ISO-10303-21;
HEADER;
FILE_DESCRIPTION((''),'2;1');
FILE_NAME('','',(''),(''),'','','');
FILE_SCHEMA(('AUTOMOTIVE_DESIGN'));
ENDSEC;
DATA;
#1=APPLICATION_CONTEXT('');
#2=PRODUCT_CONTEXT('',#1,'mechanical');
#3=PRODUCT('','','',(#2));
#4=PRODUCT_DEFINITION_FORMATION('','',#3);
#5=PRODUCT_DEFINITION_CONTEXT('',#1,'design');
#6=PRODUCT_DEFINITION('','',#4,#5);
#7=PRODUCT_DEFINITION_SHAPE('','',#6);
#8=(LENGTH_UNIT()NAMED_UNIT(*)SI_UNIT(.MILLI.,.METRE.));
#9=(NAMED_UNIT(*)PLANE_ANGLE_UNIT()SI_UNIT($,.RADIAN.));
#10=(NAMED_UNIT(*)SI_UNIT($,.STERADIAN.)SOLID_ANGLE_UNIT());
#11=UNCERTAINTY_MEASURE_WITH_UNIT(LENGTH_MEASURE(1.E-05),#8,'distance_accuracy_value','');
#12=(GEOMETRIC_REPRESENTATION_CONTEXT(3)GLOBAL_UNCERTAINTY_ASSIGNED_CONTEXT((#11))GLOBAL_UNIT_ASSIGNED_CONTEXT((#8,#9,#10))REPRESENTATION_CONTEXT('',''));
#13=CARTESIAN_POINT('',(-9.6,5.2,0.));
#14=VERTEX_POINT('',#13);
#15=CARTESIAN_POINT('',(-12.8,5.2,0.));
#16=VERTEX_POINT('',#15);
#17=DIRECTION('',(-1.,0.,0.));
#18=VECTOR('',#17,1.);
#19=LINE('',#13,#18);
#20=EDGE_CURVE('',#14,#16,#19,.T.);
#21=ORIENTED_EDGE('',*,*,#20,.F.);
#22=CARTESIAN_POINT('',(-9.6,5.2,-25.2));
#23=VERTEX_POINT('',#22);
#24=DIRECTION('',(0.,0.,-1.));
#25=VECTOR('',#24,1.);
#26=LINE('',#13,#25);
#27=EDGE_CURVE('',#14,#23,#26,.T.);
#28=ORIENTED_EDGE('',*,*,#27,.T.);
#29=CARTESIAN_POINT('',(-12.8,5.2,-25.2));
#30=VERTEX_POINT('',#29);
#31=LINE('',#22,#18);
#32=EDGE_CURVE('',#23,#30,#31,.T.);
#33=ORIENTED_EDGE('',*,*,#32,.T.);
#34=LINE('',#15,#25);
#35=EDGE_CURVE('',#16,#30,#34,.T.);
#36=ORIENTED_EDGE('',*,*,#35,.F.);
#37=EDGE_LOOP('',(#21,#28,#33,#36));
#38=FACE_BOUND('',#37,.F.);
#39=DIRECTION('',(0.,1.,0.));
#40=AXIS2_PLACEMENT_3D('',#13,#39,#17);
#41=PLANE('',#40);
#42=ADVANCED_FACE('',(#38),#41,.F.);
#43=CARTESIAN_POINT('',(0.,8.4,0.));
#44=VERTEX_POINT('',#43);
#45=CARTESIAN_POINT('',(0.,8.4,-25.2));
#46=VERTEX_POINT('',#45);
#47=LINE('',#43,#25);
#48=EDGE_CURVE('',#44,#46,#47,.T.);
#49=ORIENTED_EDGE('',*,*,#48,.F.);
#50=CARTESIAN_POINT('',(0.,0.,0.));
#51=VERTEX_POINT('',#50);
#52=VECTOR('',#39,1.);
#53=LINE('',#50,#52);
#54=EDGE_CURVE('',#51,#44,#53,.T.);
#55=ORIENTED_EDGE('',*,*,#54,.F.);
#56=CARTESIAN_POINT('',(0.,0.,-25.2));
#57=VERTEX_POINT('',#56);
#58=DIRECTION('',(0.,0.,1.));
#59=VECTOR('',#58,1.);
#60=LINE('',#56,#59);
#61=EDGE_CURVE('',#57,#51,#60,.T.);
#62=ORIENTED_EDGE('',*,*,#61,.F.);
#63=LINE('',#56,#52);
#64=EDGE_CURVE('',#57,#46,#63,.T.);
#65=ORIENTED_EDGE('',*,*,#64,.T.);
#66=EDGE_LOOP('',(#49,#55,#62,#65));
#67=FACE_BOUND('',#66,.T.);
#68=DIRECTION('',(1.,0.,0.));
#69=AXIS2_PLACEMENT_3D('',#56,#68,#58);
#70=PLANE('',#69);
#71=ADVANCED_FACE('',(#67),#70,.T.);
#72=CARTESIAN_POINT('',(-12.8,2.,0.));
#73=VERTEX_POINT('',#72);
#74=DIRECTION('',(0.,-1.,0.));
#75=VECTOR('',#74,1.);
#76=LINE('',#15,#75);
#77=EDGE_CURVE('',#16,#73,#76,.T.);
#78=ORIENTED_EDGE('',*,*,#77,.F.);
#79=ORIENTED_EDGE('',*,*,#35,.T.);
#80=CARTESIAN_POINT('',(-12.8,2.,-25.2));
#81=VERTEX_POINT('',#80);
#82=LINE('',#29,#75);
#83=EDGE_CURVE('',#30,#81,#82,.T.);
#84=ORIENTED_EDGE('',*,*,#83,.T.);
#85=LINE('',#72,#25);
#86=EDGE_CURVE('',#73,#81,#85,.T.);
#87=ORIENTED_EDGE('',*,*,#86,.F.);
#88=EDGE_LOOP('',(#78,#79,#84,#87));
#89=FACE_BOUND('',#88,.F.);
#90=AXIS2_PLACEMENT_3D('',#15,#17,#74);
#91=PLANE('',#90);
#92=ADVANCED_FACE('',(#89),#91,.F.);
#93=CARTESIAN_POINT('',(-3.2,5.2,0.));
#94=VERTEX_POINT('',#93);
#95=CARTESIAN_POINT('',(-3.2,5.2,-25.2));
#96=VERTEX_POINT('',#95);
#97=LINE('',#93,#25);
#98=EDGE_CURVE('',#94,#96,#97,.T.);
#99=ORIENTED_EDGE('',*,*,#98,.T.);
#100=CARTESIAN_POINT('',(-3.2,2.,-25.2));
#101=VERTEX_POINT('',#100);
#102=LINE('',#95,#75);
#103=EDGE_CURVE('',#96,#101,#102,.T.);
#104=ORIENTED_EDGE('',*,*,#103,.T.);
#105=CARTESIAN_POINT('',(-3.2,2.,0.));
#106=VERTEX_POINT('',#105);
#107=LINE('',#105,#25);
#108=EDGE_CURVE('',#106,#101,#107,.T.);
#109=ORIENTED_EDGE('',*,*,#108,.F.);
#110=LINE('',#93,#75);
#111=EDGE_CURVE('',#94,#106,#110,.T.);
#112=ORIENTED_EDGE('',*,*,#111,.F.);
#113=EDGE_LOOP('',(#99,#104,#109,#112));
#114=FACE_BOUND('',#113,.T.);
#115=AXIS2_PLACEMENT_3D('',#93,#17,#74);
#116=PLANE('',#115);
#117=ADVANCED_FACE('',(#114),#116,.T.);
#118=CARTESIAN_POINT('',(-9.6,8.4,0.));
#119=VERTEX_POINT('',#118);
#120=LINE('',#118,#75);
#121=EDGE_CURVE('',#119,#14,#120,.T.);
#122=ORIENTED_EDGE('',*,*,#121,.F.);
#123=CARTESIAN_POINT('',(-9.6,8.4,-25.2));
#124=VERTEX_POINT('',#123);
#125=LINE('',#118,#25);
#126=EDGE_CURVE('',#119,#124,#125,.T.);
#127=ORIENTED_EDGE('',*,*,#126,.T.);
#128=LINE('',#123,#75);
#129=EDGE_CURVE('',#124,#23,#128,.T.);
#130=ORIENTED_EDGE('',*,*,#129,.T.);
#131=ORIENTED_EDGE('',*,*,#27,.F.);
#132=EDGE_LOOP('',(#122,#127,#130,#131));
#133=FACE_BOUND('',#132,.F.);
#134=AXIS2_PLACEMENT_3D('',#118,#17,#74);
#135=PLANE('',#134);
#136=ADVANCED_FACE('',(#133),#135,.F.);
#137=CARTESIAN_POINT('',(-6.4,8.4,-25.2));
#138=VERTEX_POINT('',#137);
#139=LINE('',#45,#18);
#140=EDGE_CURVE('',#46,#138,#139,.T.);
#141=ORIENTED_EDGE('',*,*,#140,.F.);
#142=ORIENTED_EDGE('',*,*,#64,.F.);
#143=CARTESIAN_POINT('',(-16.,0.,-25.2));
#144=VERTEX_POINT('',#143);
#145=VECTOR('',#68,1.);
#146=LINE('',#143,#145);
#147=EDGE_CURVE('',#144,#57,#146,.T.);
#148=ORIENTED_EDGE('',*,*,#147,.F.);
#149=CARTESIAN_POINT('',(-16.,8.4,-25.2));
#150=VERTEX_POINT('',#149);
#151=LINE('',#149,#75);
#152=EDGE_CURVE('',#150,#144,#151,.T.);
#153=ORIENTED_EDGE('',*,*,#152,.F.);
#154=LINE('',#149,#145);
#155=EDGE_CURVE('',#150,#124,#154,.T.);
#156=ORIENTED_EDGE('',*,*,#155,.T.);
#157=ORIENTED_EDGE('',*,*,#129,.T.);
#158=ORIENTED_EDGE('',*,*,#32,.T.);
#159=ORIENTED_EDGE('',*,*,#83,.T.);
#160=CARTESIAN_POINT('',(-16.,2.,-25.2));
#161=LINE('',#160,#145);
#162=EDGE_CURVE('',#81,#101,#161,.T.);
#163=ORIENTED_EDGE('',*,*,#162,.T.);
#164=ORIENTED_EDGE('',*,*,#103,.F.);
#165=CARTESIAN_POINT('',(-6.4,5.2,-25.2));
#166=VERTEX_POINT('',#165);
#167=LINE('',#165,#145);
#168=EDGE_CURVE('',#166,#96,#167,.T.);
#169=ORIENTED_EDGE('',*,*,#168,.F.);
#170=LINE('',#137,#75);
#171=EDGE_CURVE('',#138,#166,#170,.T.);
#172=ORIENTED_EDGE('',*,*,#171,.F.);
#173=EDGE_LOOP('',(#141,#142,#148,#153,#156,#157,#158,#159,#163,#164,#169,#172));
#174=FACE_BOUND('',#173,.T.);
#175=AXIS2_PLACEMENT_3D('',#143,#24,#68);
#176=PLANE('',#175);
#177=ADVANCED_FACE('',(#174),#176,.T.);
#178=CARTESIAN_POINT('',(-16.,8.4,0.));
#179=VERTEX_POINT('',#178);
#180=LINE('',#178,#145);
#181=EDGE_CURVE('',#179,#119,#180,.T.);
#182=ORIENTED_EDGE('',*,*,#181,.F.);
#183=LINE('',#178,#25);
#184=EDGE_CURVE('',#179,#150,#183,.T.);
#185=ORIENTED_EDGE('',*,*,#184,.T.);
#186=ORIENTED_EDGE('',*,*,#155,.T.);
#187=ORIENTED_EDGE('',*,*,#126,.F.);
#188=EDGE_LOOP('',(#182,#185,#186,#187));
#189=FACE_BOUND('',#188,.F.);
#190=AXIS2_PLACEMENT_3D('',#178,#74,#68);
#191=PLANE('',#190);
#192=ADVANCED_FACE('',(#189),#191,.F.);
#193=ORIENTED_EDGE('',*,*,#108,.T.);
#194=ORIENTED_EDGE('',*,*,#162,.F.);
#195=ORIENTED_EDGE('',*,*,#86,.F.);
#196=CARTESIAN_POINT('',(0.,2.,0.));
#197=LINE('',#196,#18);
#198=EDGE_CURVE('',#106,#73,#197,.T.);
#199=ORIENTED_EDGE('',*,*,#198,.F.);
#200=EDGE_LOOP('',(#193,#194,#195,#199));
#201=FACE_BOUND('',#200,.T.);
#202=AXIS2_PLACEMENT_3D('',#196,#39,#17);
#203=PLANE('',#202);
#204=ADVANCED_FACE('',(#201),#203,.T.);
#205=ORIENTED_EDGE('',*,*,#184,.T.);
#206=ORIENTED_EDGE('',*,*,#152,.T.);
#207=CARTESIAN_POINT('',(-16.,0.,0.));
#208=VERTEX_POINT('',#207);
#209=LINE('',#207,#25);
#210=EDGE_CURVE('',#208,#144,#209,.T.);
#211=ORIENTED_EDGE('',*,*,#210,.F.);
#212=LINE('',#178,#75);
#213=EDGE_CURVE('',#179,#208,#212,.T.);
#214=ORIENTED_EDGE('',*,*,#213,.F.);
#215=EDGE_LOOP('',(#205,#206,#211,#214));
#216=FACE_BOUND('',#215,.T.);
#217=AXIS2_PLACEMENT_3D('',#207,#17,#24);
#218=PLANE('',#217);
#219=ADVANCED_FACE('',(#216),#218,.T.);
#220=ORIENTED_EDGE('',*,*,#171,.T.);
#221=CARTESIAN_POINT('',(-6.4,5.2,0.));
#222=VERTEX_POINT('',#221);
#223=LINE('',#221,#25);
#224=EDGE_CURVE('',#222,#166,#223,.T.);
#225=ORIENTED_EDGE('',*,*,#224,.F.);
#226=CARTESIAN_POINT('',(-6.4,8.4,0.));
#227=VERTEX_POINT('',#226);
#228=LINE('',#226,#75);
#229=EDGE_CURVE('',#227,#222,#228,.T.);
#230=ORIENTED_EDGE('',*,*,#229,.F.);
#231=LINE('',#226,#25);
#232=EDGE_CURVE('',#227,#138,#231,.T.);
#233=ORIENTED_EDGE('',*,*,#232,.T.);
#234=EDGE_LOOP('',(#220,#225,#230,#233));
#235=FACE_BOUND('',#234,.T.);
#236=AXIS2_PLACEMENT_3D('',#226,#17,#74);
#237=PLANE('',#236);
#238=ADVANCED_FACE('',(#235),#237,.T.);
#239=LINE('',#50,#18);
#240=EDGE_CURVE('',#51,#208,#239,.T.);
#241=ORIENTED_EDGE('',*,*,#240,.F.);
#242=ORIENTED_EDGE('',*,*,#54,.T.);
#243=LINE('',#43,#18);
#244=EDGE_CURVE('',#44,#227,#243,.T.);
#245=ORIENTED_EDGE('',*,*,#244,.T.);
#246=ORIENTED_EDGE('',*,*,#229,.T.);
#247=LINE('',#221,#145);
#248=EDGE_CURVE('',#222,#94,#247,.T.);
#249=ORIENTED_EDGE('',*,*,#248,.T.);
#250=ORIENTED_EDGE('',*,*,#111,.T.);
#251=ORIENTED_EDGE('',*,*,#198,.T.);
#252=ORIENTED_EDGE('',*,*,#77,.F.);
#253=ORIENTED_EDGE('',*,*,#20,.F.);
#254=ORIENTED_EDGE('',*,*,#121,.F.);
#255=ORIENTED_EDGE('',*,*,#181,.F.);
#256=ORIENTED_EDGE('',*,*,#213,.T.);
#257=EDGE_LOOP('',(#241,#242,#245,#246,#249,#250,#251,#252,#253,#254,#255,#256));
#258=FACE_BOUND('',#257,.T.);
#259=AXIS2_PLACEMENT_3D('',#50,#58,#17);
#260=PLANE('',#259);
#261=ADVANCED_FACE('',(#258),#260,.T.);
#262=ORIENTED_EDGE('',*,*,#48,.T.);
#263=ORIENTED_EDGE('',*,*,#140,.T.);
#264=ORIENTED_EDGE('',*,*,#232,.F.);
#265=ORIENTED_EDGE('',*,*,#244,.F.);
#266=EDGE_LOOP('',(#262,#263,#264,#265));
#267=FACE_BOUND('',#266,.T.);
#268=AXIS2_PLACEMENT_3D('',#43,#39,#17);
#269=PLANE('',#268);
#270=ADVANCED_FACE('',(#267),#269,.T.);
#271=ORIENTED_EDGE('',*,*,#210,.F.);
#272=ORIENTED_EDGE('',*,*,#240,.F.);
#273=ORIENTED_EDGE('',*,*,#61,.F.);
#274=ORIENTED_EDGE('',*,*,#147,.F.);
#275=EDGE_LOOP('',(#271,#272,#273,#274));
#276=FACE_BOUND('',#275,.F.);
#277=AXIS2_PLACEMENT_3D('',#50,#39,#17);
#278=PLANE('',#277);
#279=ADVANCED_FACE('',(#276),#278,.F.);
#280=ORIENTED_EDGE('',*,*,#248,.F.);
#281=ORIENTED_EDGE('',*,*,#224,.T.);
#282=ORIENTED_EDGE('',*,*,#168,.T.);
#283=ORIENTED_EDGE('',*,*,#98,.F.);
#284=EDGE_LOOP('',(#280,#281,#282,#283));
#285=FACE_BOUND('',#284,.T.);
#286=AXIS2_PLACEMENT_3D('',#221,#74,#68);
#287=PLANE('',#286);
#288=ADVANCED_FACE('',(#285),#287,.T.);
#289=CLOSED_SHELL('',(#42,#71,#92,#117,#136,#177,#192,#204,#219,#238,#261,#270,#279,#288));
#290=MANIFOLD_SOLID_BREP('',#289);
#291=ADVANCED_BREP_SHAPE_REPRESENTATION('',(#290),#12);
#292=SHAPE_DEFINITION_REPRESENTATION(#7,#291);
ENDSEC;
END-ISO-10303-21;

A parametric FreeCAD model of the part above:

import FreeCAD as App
import Part
import Sketcher

V = App.Vector
Q = App.Units.Quantity


def add_polygon(sketch, points):
    """Adds a closed chain of lines whose ends are joined by coincident constraints."""
    first, n = sketch.GeometryCount, len(points)
    for a, b in zip(points, points[1:] + points[:1]):
        sketch.addGeometry(Part.LineSegment(App.Vector(*a, 0), App.Vector(*b, 0)), False)
    for i in range(n):
        sketch.addConstraint(Sketcher.Constraint("Coincident", first + i, 2, first + (i + 1) % n, 1))

doc = App.newDocument("Part")
body = doc.addObject("PartDesign::Body", "Body")

sketch1 = body.newObject("Sketcher::SketchObject", "Sketch")
sketch1.AttachmentSupport = (doc.getObject("XZ_Plane"), [""])
sketch1.MapMode = "FlatFace"
add_polygon(sketch1, [(-16, 0), (0, 0), (0, -25), (-16, -25)])
sketch1.addConstraint([
    Sketcher.Constraint("Horizontal", 0),
    Sketcher.Constraint("Vertical", 1),
    Sketcher.Constraint("Horizontal", 2),
    Sketcher.Constraint("Vertical", 3),
    Sketcher.Constraint("Coincident", 0, 2, -1, 1),
    Sketcher.Constraint("DistanceX", 0, 1, 0, 2, Q("16 mm")),
    Sketcher.Constraint("DistanceY", 1, 2, 1, 1, Q("25.2 mm")),
])
pad1 = body.newObject("PartDesign::Pad", "Pad")
pad1.Profile = sketch1
pad1.Length = 2
pad1.Reversed = True

sketch2 = body.newObject("Sketcher::SketchObject", "Sketch001")
sketch2.AttachmentSupport = (doc.getObject("XY_Plane"), [""])
sketch2.MapMode = "FlatFace"
add_polygon(sketch2, [(-16, 8.4), (-16, 2), (-12.8, 2), (-12.8, 5.2), (-9.6, 5.2), (-9.6, 8.4)])
add_polygon(sketch2, [(-3.2, 5.2), (-3.2, 2), (0, 2), (0, 8.4), (-6.4, 8.4), (-6.4, 5.2)])
sketch2.addConstraint([
    Sketcher.Constraint("Vertical", 0),
    Sketcher.Constraint("Horizontal", 1),
    Sketcher.Constraint("Vertical", 2),
    Sketcher.Constraint("Horizontal", 3),
    Sketcher.Constraint("Vertical", 4),
    Sketcher.Constraint("Horizontal", 5),
    Sketcher.Constraint("Vertical", 6),
    Sketcher.Constraint("Horizontal", 7),
    Sketcher.Constraint("Vertical", 8),
    Sketcher.Constraint("Horizontal", 9),
    Sketcher.Constraint("Vertical", 10),
    Sketcher.Constraint("Horizontal", 11),
    Sketcher.Constraint("PointOnObject", 7, 2, -2),
    Sketcher.Constraint("Horizontal", 1, 2, 6, 2),
    Sketcher.Constraint("Horizontal", 5, 2, 8, 2),
    Sketcher.Constraint("Horizontal", 3, 2, 10, 2),
    Sketcher.Constraint("Equal", 1, 3),
    Sketcher.Constraint("Equal", 3, 7),
    Sketcher.Constraint("Equal", 5, 9),
    Sketcher.Constraint("Equal", 9, 0),
    Sketcher.Constraint("Equal", 11, 2),
    Sketcher.Constraint("DistanceX", 1, 1, 1, 2, Q("3.2 mm")),
    Sketcher.Constraint("DistanceX", 3, 2, 6, 2, Q("6.4 mm")),
    Sketcher.Constraint("DistanceY", -1, 1, 0, 2, Q("2 mm")),
])
pad2 = body.newObject("PartDesign::Pad", "Pad001")
pad2.Profile = sketch2
pad2.Length = 25.2
pad2.Reversed = True

doc.recompute()
